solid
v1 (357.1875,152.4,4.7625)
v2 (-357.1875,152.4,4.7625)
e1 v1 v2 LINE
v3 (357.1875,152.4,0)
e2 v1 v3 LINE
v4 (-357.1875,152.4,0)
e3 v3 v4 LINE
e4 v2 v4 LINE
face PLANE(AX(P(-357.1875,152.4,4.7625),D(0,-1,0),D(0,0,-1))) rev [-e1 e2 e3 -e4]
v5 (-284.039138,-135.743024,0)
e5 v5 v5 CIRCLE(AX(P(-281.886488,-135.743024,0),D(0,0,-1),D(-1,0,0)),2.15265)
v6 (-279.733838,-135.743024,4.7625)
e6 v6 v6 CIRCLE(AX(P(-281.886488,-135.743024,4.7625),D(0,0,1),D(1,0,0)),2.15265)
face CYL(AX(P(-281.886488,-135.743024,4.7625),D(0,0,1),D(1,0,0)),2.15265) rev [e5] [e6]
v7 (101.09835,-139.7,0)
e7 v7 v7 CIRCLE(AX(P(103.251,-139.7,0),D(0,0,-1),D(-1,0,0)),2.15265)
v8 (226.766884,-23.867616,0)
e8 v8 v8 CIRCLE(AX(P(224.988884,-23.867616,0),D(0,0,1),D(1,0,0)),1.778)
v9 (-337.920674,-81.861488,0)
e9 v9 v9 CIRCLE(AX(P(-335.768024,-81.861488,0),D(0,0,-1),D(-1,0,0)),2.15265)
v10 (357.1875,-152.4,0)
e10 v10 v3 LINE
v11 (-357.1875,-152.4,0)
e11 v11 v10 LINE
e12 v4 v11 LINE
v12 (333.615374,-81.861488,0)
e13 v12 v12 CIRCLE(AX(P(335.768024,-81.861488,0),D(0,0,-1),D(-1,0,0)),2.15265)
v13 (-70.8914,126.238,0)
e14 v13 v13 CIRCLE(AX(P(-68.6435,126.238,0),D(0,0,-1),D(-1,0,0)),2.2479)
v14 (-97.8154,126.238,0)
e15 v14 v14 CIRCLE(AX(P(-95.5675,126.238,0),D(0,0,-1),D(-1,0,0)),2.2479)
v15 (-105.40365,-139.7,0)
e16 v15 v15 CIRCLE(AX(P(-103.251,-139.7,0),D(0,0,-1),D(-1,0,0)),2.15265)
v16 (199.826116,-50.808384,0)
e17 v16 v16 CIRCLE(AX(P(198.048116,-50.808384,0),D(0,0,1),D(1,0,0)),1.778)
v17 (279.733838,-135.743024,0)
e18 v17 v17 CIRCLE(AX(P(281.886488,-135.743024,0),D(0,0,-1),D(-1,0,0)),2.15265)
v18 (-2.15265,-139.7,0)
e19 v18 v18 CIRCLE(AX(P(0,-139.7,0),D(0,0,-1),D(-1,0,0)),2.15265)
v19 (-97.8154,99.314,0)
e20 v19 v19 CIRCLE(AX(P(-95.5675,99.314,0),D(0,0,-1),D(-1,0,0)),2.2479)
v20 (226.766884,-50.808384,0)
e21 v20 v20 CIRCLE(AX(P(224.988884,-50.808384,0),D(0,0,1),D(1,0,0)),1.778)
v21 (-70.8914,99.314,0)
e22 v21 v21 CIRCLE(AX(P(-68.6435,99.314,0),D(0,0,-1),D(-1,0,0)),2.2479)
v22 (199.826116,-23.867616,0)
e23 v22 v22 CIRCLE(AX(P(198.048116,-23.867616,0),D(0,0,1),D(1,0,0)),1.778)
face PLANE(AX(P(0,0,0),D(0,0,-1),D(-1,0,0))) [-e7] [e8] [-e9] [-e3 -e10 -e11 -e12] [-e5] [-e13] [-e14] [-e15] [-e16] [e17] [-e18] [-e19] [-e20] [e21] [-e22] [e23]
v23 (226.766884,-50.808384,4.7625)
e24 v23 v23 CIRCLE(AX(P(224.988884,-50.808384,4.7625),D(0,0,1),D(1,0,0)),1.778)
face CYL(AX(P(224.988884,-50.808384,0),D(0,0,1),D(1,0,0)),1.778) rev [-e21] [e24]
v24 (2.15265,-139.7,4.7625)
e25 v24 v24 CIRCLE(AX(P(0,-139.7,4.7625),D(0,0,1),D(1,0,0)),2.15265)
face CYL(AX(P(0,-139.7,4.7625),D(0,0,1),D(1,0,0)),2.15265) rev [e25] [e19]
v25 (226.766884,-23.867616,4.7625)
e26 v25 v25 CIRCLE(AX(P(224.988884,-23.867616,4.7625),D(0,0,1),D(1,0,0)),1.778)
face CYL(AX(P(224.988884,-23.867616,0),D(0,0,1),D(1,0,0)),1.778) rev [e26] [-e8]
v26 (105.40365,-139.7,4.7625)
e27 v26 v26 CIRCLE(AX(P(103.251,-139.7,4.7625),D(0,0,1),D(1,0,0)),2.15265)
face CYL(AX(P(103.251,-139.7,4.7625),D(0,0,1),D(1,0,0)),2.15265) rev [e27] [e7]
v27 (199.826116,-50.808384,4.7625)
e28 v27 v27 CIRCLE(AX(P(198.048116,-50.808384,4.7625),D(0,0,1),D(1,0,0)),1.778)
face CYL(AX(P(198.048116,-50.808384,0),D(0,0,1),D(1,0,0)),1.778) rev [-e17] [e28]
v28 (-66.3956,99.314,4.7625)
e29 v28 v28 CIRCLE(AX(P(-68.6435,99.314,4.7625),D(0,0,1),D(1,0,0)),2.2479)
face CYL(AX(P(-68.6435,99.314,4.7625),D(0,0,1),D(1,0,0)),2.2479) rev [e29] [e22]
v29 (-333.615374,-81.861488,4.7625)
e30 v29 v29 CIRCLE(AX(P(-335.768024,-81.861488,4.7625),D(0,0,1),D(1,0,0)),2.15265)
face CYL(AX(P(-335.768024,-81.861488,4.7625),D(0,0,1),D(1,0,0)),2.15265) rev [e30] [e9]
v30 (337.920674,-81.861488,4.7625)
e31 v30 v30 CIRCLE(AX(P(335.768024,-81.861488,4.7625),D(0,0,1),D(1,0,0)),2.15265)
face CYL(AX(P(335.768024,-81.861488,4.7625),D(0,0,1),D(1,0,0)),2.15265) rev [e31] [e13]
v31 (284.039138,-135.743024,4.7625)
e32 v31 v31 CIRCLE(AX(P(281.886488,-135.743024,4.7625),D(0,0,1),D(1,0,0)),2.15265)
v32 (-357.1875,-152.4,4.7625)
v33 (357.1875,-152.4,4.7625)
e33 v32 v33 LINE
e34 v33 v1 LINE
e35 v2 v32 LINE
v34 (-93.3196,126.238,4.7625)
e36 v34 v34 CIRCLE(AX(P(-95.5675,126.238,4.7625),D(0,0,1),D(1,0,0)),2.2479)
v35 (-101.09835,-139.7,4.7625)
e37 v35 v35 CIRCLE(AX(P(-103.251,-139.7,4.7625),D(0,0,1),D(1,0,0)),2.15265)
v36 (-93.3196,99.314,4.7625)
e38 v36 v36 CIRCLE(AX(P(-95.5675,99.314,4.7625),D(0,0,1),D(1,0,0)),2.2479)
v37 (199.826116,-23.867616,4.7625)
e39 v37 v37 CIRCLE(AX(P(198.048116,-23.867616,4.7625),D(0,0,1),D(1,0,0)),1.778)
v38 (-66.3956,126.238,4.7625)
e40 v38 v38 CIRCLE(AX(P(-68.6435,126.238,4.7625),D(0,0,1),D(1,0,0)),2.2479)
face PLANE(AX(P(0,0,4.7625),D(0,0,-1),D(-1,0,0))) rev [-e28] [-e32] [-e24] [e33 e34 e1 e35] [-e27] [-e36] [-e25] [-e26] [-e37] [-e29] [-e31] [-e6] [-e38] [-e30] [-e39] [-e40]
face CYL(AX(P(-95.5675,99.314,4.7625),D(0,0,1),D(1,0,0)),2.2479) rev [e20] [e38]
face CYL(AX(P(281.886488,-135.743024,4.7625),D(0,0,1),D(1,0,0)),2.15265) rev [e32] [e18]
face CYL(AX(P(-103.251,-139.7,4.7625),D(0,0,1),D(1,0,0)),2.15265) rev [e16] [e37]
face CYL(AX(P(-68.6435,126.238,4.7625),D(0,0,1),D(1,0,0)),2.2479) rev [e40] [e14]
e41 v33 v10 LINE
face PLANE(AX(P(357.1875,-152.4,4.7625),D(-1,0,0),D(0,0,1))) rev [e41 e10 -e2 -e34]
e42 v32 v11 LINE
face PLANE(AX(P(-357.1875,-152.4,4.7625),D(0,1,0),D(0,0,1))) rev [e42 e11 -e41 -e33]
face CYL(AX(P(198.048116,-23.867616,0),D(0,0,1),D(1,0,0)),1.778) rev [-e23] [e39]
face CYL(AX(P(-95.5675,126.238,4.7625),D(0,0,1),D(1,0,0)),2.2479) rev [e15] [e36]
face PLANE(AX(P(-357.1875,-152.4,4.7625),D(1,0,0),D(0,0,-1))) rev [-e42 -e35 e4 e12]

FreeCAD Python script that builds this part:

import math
import FreeCAD as App
import Part
import Sketcher
from FreeCAD import Vector
Q = App.Units.Quantity


def add_polygon(sketch, points):
    """Adds a closed chain of lines whose ends are joined by coincident constraints."""
    first, n = sketch.GeometryCount, len(points)
    for a, b in zip(points, points[1:] + points[:1]):
        sketch.addGeometry(Part.LineSegment(App.Vector(*a, 0), App.Vector(*b, 0)), False)
    for i in range(n):
        sketch.addConstraint(Sketcher.Constraint("Coincident", first + i, 2, first + (i + 1) % n, 1))

doc = App.newDocument("Part")
body = doc.addObject("PartDesign::Body", "Body")

sketch1 = body.newObject("Sketcher::SketchObject", "Sketch")
sketch1.AttachmentSupport = (doc.getObject("XY_Plane"), [""])
sketch1.MapMode = "FlatFace"
add_polygon(sketch1, [(-357, 152), (-357, -152), (357, -152), (357, 152)])
sketch1.addConstraint(Sketcher.Constraint("Vertical", 0))
sketch1.addConstraint(Sketcher.Constraint("Horizontal", 1))
sketch1.addConstraint(Sketcher.Constraint("Vertical", 2))
sketch1.addConstraint(Sketcher.Constraint("Horizontal", 3))
sketch1.addConstraint(Sketcher.Constraint("Symmetric", 0, 2, 2, 2, -1, 1))
sketch1.addConstraint(Sketcher.Constraint("DistanceY", 0, 2, 0, 1, Q("12 in")))
sketch1.addConstraint(Sketcher.Constraint("DistanceX", 1, 1, 1, 2, Q("28.125 in")))
pad1 = body.newObject("PartDesign::Pad", "Pad")
pad1.Profile = sketch1
pad1.Length = Q("0.1875 in")

sketch2 = body.newObject("Sketcher::SketchObject", "Sketch001")
sketch2.AttachmentSupport = (doc.getObject("XY_Plane"), [""])
sketch2.MapMode = "FlatFace"
sketch2.AttachmentOffset = App.Placement(Vector(0, 0, 0.1875 * 25.4), App.Rotation())
sketch2.addGeometry(Part.LineSegment(Vector(277.2, 112.4, 0), Vector(277.2, 103.5, 0)), False)
sketch2.addGeometry(Part.ArcOfCircle(Part.Circle(Vector(279.4, 103.5, 0), Vector(0, 0, 1), 2.2), math.radians(180), math.radians(360)), False)
sketch2.addGeometry(Part.LineSegment(Vector(281.6, 103.5, 0), Vector(281.6, 112.4, 0)), False)
sketch2.addGeometry(Part.ArcOfCircle(Part.Circle(Vector(279.4, 112.4, 0), Vector(0, 0, 1), 2.2), math.radians(0), math.radians(180)), False)
sketch2.addGeometry(Part.LineSegment(Vector(-277.2, 103.5, 0), Vector(-277.2, 112.4, 0)), False)
sketch2.addGeometry(Part.ArcOfCircle(Part.Circle(Vector(-279.4, 112.4, 0), Vector(0, 0, 1), 2.2), math.radians(0), math.radians(180)), False)
sketch2.addGeometry(Part.LineSegment(Vector(-281.6, 112.4, 0), Vector(-281.6, 103.5, 0)), False)
sketch2.addGeometry(Part.ArcOfCircle(Part.Circle(Vector(-279.4, 103.5, 0), Vector(0, 0, 1), 2.2), math.radians(180), math.radians(360)), False)
sketch2.addConstraint(Sketcher.Constraint("Tangent", 0, 2, 1, 1))
sketch2.addConstraint(Sketcher.Constraint("Tangent", 1, 2, 2, 1))
sketch2.addConstraint(Sketcher.Constraint("Tangent", 2, 2, 3, 1))
sketch2.addConstraint(Sketcher.Constraint("Tangent", 3, 2, 0, 1))
sketch2.addConstraint(Sketcher.Constraint("Tangent", 4, 2, 5, 1))
sketch2.addConstraint(Sketcher.Constraint("Tangent", 5, 2, 6, 1))
sketch2.addConstraint(Sketcher.Constraint("Tangent", 6, 2, 7, 1))
sketch2.addConstraint(Sketcher.Constraint("Tangent", 7, 2, 4, 1))
sketch2.addConstraint(Sketcher.Constraint("Vertical", 0))
sketch2.addConstraint(Sketcher.Constraint("Vertical", 2))
sketch2.addConstraint(Sketcher.Constraint("Vertical", 4))
sketch2.addConstraint(Sketcher.Constraint("Vertical", 6))
sketch2.addConstraint(Sketcher.Constraint("Equal", 3, 5))
sketch2.addConstraint(Sketcher.Constraint("Symmetric", 3, 3, 5, 3, -2))
sketch2.addConstraint(Sketcher.Constraint("Horizontal", 1, 3, 7, 3))
sketch2.addConstraint(Sketcher.Constraint("DistanceX", -1, 1, 1, 3, Q("11 in")))
sketch2.addConstraint(Sketcher.Constraint("DistanceY", 0, 2, 0, 1, Q("0.35 in")))
sketch2.addConstraint(Sketcher.Constraint("Radius", 1, Q("0.0885 in")))
sketch2.addConstraint(Sketcher.Constraint("DistanceY", -1, 1, 1, 3, Q("4.075 in")))
pocket1 = body.newObject("PartDesign::Pocket", "Pocket")
pocket1.Profile = sketch2
pocket1.Type = "ThroughAll"

sketch3 = body.newObject("Sketcher::SketchObject", "Sketch002")
sketch3.AttachmentSupport = (doc.getObject("XY_Plane"), [""])
sketch3.MapMode = "FlatFace"
sketch3.AttachmentOffset = App.Placement(Vector(0, 0, 0.1875 * 25.4), App.Rotation())
sketch3.addGeometry(Part.Circle(Vector(-127, -120.7, 0), Vector(0, 0, 1), 2.2), False)
sketch3.addConstraint(Sketcher.Constraint("DistanceX", 0, 3, -1, 1, Q("5 in")))
sketch3.addConstraint(Sketcher.Constraint("Diameter", 0, Q("0.1695 in")))
sketch3.addConstraint(Sketcher.Constraint("DistanceY", 0, 3, -1, 1, Q("4.75 in")))
pocket2 = body.newObject("PartDesign::Pocket", "Pocket001")
pocket2.Profile = sketch3
pocket2.Type = "UpToFirst"

sketch4 = body.newObject("Sketcher::SketchObject", "Sketch003")
sketch4.AttachmentSupport = (doc.getObject("XY_Plane"), [""])
sketch4.MapMode = "FlatFace"
sketch4.AttachmentOffset = App.Placement(Vector(0, 0, 0.1875 * 25.4), App.Rotation())
sketch4.addGeometry(Part.Circle(Vector(-215.9, -120.7, 0), Vector(0, 0, 1), 2.2), False)
sketch4.addConstraint(Sketcher.Constraint("Diameter", 0, Q("0.1695 in")))
sketch4.addConstraint(Sketcher.Constraint("DistanceX", 0, 3, -1, 1, Q("8.5 in")))
sketch4.addConstraint(Sketcher.Constraint("DistanceY", 0, 3, -1, 1, Q("4.75 in")))
pocket3 = body.newObject("PartDesign::Pocket", "Pocket002")
pocket3.Profile = sketch4
pocket3.Type = "UpToFirst"

sketch5 = body.newObject("Sketcher::SketchObject", "Sketch004")
sketch5.AttachmentSupport = (doc.getObject("XY_Plane"), [""])
sketch5.MapMode = "FlatFace"
sketch5.AttachmentOffset = App.Placement(Vector(0, 0, 0.1875 * 25.4), App.Rotation())
sketch5.addGeometry(Part.Circle(Vector(215.9, -120.7, 0), Vector(0, 0, 1), 2.2), False)
sketch5.addConstraint(Sketcher.Constraint("Diameter", 0, Q("0.1695 in")))
sketch5.addConstraint(Sketcher.Constraint("DistanceX", -1, 1, 0, 3, Q("8.5 in")))
sketch5.addConstraint(Sketcher.Constraint("DistanceY", 0, 3, -1, 1, Q("4.75 in")))
pocket4 = body.newObject("PartDesign::Pocket", "Pocket003")
pocket4.Profile = sketch5
pocket4.Type = "UpToFirst"

sketch6 = body.newObject("Sketcher::SketchObject", "Sketch005")
sketch6.AttachmentSupport = (doc.getObject("XY_Plane"), [""])
sketch6.MapMode = "FlatFace"
sketch6.AttachmentOffset = App.Placement(Vector(0, 0, 0.1875 * 25.4), App.Rotation())
sketch6.addGeometry(Part.Circle(Vector(127, -120.7, 0), Vector(0, 0, 1), 2.2), False)
sketch6.addConstraint(Sketcher.Constraint("DistanceX", -1, 1, 0, 3, Q("5 in")))
sketch6.addConstraint(Sketcher.Constraint("Diameter", 0, Q("0.1695 in")))
sketch6.addConstraint(Sketcher.Constraint("DistanceY", 0, 3, -1, 1, Q("4.75 in")))
pocket5 = body.newObject("PartDesign::Pocket", "Pocket004")
pocket5.Profile = sketch6
pocket5.Type = "UpToFirst"

sketch7 = body.newObject("Sketcher::SketchObject", "Sketch006")
sketch7.AttachmentSupport = (doc.getObject("YZ_Plane"), [""])
sketch7.MapMode = "FlatFace"
sketch7.AttachmentOffset = App.Placement(Vector(0, 0, -11.0885 * 25.4), App.Rotation())
add_polygon(sketch7, [(152.4, 4.8), (-152.4, 4.8), (-152.4, 0), (152.4, 0)])
sketch7.addConstraint(Sketcher.Constraint("Horizontal", 0))
sketch7.addConstraint(Sketcher.Constraint("Vertical", 1))
sketch7.addConstraint(Sketcher.Constraint("Horizontal", 2))
sketch7.addConstraint(Sketcher.Constraint("Vertical", 3))
sketch7.addConstraint(Sketcher.Constraint("Symmetric", 1, 2, 2, 2, -1, 1))
sketch7.addConstraint(Sketcher.Constraint("DistanceX", 0, 2, 0, 1, Q("12 in")))
sketch7.addConstraint(Sketcher.Constraint("DistanceY", 1, 2, 1, 1, Q("0.1875 in")))
pad2 = body.newObject("PartDesign::Pad", "Pad001")
pad2.Profile = sketch7
pad2.Length = Q("22.177 in")

sketch8 = body.newObject("Sketcher::SketchObject", "Sketch007")
sketch8.AttachmentSupport = (doc.getObject("XY_Plane"), [""])
sketch8.MapMode = "FlatFace"
sketch8.AttachmentOffset = App.Placement(Vector(0, 0, 0.1875 * 25.4), App.Rotation())
sketch8.addGeometry(Part.Circle(Vector(-335.8, -81.9, 0), Vector(0, 0, 1), 2.2), False)
sketch8.addGeometry(Part.Circle(Vector(-281.9, -135.7, 0), Vector(0, 0, 1), 2.2), False)
sketch8.addGeometry(Part.Circle(Vector(281.9, -135.7, 0), Vector(0, 0, 1), 2.2), False)
sketch8.addGeometry(Part.Circle(Vector(335.8, -81.9, 0), Vector(0, 0, 1), 2.2), False)
sketch8.addConstraint(Sketcher.Constraint("Equal", 0, 1))
sketch8.addConstraint(Sketcher.Constraint("Equal", 1, 2))
sketch8.addConstraint(Sketcher.Constraint("Equal", 2, 3))
sketch8.addConstraint(Sketcher.Constraint("Symmetric", 1, 3, 2, 3, -2))
sketch8.addConstraint(Sketcher.Constraint("Symmetric", 0, 3, 3, 3, -2))
sketch8.addConstraint(Sketcher.Constraint("Diameter", 0, Q("0.1695 in")))
sketch8.addConstraint(Sketcher.Constraint("DistanceX", 0, 3, 3, 3, 671.536049))
sketch8.addConstraint(Sketcher.Constraint("DistanceY", 0, 3, -1, 1, 81.861488))
sketch8.addConstraint(Sketcher.Constraint("DistanceX", 1, 3, -1, 1, 281.886488))
sketch8.addConstraint(Sketcher.Constraint("DistanceY", 1, 3, -1, 1, 135.743024))
doc.recompute()
hole = body.newObject("PartDesign::Hole", "Hole")
hole.Profile = sketch8
hole.ThreadType = "None"
hole.Diameter = Q("0.1695 in")
hole.DepthType = "Dimension"
hole.Depth = Q("2.93 in")
hole.DrillPoint = "Angled"
hole.DrillPointAngle = 118

sketch9 = body.newObject("Sketcher::SketchObject", "Sketch008")
sketch9.AttachmentSupport = (doc.getObject("XY_Plane"), [""])
sketch9.MapMode = "FlatFace"
sketch9.AttachmentOffset = App.Placement(Vector(0, 0, 0.1875 * 25.4), App.Rotation())
sketch9.addGeometry(Part.Circle(Vector(-103.3, -139.7, 0), Vector(0, 0, 1), 2.2), False)
sketch9.addGeometry(Part.Circle(Vector(0, -139.7, 0), Vector(0, 0, 1), 2.2), False)
sketch9.addGeometry(Part.Circle(Vector(103.3, -139.7, 0), Vector(0, 0, 1), 2.2), False)
sketch9.addConstraint(Sketcher.Constraint("Equal", 0, 1))
sketch9.addConstraint(Sketcher.Constraint("Equal", 1, 2))
sketch9.addConstraint(Sketcher.Constraint("Symmetric", 0, 3, 2, 3, -2))
sketch9.addConstraint(Sketcher.Constraint("PointOnObject", 1, 3, -2))
sketch9.addConstraint(Sketcher.Constraint("Horizontal", 0, 3, 1, 3))
sketch9.addConstraint(Sketcher.Constraint("Diameter", 0, Q("0.1695 in")))
sketch9.addConstraint(Sketcher.Constraint("DistanceY", 0, 3, -1, 1, Q("5.5 in")))
sketch9.addConstraint(Sketcher.Constraint("DistanceX", 0, 3, 2, 3, Q("8.13 in")))
doc.recompute()
hole2 = body.newObject("PartDesign::Hole", "Hole001")
hole2.Profile = sketch9
hole2.ThreadType = "None"
hole2.Diameter = Q("0.1695 in")
hole2.DepthType = "Dimension"
hole2.Depth = Q("2.93 in")
hole2.DrillPoint = "Angled"
hole2.DrillPointAngle = 118

sketch10 = body.newObject("Sketcher::SketchObject", "Sketch009")
sketch10.AttachmentSupport = (doc.getObject("XY_Plane"), [""])
sketch10.MapMode = "FlatFace"
sketch10.AttachmentOffset = App.Placement(Vector(0, 0, 0.1875 * 25.4), App.Rotation())
sketch10.addGeometry(Part.Circle(Vector(-95.6, 126.2, 0), Vector(0, 0, 1), 2.2), False)
sketch10.addGeometry(Part.Circle(Vector(-68.6, 126.2, 0), Vector(0, 0, 1), 2.2), False)
sketch10.addGeometry(Part.Circle(Vector(-95.6, 99.3, 0), Vector(0, 0, 1), 2.2), False)
sketch10.addGeometry(Part.Circle(Vector(-68.6, 99.3, 0), Vector(0, 0, 1), 2.2), False)
sketch10.addConstraint(Sketcher.Constraint("Equal", 0, 1))
sketch10.addConstraint(Sketcher.Constraint("Equal", 1, 2))
sketch10.addConstraint(Sketcher.Constraint("Equal", 2, 3))
sketch10.addConstraint(Sketcher.Constraint("Horizontal", 0, 3, 1, 3))
sketch10.addConstraint(Sketcher.Constraint("Horizontal", 2, 3, 3, 3))
sketch10.addConstraint(Sketcher.Constraint("Vertical", 0, 3, 2, 3))
sketch10.addConstraint(Sketcher.Constraint("Vertical", 1, 3, 3, 3))
sketch10.addConstraint(Sketcher.Constraint("Diameter", 0, Q("0.177 in")))
sketch10.addConstraint(Sketcher.Constraint("DistanceY", -1, 1, 0, 3, Q("4.97 in")))
sketch10.addConstraint(Sketcher.Constraint("DistanceY", -1, 1, 2, 3, Q("3.91 in")))
sketch10.addConstraint(Sketcher.Constraint("DistanceX", 0, 3, 1, 3, Q("1.06 in")))
sketch10.addConstraint(Sketcher.Constraint("DistanceX", 0, 3, -1, 1, Q("3.7625 in")))
doc.recompute()
hole3 = body.newObject("PartDesign::Hole", "Hole002")
hole3.Profile = sketch10
hole3.ThreadType = "None"
hole3.Diameter = Q("0.177 in")
hole3.DepthType = "Dimension"
hole3.Depth = Q("2.93 in")
hole3.DrillPoint = "Angled"
hole3.DrillPointAngle = 118

sketch11 = body.newObject("Sketcher::SketchObject", "Sketch010")
sketch11.AttachmentSupport = (doc.getObject("XY_Plane"), [""])
sketch11.MapMode = "FlatFace"
sketch11.AttachmentOffset = App.Placement(Vector(0, 0, 0.1875 * 25.4), App.Rotation())
sketch11.addGeometry(Part.Circle(Vector(198, -23.9, 0), Vector(0, 0, 1), 1.8), False)
sketch11.addGeometry(Part.Circle(Vector(225, -23.9, 0), Vector(0, 0, 1), 1.8), False)
sketch11.addGeometry(Part.Circle(Vector(225, -50.8, 0), Vector(0, 0, 1), 1.8), False)
sketch11.addGeometry(Part.Circle(Vector(198, -50.8, 0), Vector(0, 0, 1), 1.8), False)
sketch11.addConstraint(Sketcher.Constraint("Equal", 0, 1))
sketch11.addConstraint(Sketcher.Constraint("Equal", 1, 2))
sketch11.addConstraint(Sketcher.Constraint("Equal", 2, 3))
sketch11.addConstraint(Sketcher.Constraint("Horizontal", 0, 3, 1, 3))
sketch11.addConstraint(Sketcher.Constraint("Horizontal", 2, 3, 3, 3))
sketch11.addConstraint(Sketcher.Constraint("Vertical", 1, 3, 2, 3))
sketch11.addConstraint(Sketcher.Constraint("Vertical", 0, 3, 3, 3))
sketch11.addConstraint(Sketcher.Constraint("Diameter", 0, Q("0.14 in")))
sketch11.addConstraint(Sketcher.Constraint("DistanceX", 0, 3, 1, 3, 26.940768))
sketch11.addConstraint(Sketcher.Constraint("DistanceY", 2, 3, 1, 3, 26.940768))
sketch11.addConstraint(Sketcher.Constraint("DistanceX", -1, 1, 0, 3, 198.048116))
sketch11.addConstraint(Sketcher.Constraint("DistanceY", 0, 3, -1, 1, 23.867616))
pocket6 = body.newObject("PartDesign::Pocket", "Pocket005")
pocket6.Profile = sketch11
pocket6.Length = Q("0.1875 in")

doc.recompute()
